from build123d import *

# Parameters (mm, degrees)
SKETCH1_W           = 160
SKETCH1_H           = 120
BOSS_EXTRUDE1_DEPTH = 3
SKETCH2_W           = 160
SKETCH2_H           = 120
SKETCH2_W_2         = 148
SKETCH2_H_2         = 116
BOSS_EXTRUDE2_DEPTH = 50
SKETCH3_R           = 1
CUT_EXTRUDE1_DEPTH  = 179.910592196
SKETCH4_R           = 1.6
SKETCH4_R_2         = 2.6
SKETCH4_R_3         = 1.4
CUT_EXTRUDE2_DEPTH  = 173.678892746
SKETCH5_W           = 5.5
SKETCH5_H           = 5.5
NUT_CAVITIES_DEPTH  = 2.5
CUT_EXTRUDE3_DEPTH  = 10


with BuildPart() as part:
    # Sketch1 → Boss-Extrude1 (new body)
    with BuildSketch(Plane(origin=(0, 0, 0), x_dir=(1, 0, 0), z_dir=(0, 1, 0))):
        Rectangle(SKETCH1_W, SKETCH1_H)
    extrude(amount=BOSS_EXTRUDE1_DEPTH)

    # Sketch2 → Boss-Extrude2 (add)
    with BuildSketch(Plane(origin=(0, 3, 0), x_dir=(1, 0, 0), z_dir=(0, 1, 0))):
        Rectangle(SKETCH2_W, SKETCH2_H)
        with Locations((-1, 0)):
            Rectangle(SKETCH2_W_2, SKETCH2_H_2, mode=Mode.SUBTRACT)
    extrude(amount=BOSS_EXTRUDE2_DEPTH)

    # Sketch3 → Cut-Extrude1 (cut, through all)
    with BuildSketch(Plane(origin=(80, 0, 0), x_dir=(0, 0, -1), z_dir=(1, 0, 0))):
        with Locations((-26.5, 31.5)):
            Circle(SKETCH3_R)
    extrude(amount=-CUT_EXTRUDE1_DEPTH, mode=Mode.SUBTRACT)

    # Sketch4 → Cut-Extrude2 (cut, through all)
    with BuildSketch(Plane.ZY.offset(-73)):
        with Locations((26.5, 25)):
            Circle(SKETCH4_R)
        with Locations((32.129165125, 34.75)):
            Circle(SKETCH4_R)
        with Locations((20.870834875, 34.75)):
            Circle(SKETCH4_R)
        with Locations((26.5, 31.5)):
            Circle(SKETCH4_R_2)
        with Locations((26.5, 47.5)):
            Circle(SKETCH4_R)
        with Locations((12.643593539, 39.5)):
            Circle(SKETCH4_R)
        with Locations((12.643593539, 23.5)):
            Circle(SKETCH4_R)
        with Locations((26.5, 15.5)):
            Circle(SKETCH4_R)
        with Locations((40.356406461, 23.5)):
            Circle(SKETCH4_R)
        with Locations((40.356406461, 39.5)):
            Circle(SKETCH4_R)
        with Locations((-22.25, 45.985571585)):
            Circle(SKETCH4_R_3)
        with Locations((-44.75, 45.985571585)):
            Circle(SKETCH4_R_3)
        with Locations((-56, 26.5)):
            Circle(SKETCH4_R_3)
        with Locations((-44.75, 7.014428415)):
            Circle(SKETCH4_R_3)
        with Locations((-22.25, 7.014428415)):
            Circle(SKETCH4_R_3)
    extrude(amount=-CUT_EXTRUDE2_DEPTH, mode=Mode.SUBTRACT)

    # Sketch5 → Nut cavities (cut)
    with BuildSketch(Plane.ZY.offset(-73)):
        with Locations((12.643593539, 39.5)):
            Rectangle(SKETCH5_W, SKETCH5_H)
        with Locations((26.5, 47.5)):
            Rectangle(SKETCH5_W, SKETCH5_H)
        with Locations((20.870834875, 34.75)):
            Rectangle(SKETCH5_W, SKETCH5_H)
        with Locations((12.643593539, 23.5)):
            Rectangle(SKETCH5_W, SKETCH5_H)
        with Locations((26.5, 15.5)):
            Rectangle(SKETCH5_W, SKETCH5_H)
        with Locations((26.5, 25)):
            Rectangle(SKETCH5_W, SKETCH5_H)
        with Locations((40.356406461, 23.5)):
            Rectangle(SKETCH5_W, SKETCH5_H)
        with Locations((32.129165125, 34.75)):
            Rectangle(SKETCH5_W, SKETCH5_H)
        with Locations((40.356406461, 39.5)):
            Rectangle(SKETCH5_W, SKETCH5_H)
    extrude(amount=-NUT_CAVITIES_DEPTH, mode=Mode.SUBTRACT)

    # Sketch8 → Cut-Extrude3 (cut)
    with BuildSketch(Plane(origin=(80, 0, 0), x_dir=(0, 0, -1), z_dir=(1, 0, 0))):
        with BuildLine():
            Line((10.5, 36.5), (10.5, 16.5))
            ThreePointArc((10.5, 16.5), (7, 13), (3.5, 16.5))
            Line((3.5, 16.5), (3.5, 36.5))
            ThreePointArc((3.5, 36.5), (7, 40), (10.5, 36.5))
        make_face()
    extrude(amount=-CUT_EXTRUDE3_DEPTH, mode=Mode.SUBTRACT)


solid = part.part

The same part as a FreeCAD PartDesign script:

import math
import FreeCAD as App
import Part
import Sketcher

V = App.Vector

doc = App.newDocument("Part")
params = doc.addObject("Spreadsheet::Sheet", "Params")
for row, (alias, value) in enumerate([
    ("sketch1_width", "160 mm"),
    ("sketch1_height", "120 mm"),
    ("pad1_length", "3 mm"),
    ("sketch2_width", "160 mm"),
    ("sketch2_width2", "148 mm"),
    ("sketch2_height", "120 mm"),
    ("sketch2_height2", "116 mm"),
    ("pad2_length", "50 mm"),
    ("sketch3_diameter", "2 mm"),
    ("sketch4_diameter", "3.2 mm"),
    ("sketch4_diameter2", "5.2 mm"),
    ("sketch4_diameter3", "2.8 mm"),
    ("sketch5_width", "5.5 mm"),
    ("pocket3_length", "2.5 mm"),
    ("sketch6_radius", "3.5 mm"),
    ("sketch6_width", "20 mm"),
    ("pocket4_length", "10 mm"),
], start=1):
    params.set(f"A{row}", alias)
    params.set(f"B{row}", "=" + value)
    params.setAlias(f"B{row}", alias)

body = doc.addObject("PartDesign::Body", "Body")

# Sketch on XZ plane
sketch1 = body.newObject("Sketcher::SketchObject", "Sketch")
sketch1.AttachmentSupport = (doc.getObject("XZ_Plane"), [""])
sketch1.MapMode = "FlatFace"
sketch1.addGeometry([
    Part.LineSegment(V(-80, -60, 0), V(-80, 60, 0)),
    Part.LineSegment(V(-80, 60, 0), V(80, 60, 0)),
    Part.LineSegment(V(80, 60, 0), V(80, -60, 0)),
    Part.LineSegment(V(80, -60, 0), V(-80, -60, 0)),
], False)
sketch1.addConstraint([
    Sketcher.Constraint("Coincident", 0, 2, 1, 1),
    Sketcher.Constraint("Coincident", 1, 2, 2, 1),
    Sketcher.Constraint("Coincident", 2, 2, 3, 1),
    Sketcher.Constraint("Coincident", 3, 2, 0, 1),
    Sketcher.Constraint("Vertical", 0),
    Sketcher.Constraint("Horizontal", 1),
    Sketcher.Constraint("Vertical", 2),
    Sketcher.Constraint("Horizontal", 3),
    Sketcher.Constraint("Symmetric", 0, 2, 2, 2, -1, 1),
    Sketcher.Constraint("DistanceX", 1, 1, 1, 2, 160.0),
    Sketcher.Constraint("DistanceY", 0, 1, 0, 2, 120.0),
])
sketch1.setExpression("Constraints[9]", "Params.sketch1_width")
sketch1.setExpression("Constraints[10]", "Params.sketch1_height")
pad1 = body.newObject("PartDesign::Pad", "Pad")
pad1.Profile = sketch1
pad1.setExpression("Length", "Params.pad1_length")
pad1.Reversed = True

# Sketch on XZ plane
sketch2 = body.newObject("Sketcher::SketchObject", "Sketch001")
sketch2.AttachmentSupport = (doc.getObject("XZ_Plane"), [""])
sketch2.MapMode = "FlatFace"
sketch2.AttachmentOffset = App.Placement(V(0, 0, -3), App.Rotation())
sketch2.addGeometry([
    Part.LineSegment(V(-80, -60, 0), V(-80, 60, 0)),  # 0
    Part.LineSegment(V(-80, 60, 0), V(80, 60, 0)),  # 1
    Part.LineSegment(V(80, 60, 0), V(80, -60, 0)),  # 2
    Part.LineSegment(V(80, -60, 0), V(-80, -60, 0)),  # 3
    Part.LineSegment(V(73, 58, 0), V(-75, 58, 0)),  # 4
    Part.LineSegment(V(-75, 58, 0), V(-75, -58, 0)),  # 5
    Part.LineSegment(V(-75, -58, 0), V(73, -58, 0)),  # 6
    Part.LineSegment(V(73, -58, 0), V(73, 58, 0)),  # 7
], False)
sketch2.addConstraint([
    Sketcher.Constraint("Coincident", 0, 2, 1, 1),
    Sketcher.Constraint("Coincident", 1, 2, 2, 1),
    Sketcher.Constraint("Coincident", 2, 2, 3, 1),
    Sketcher.Constraint("Coincident", 3, 2, 0, 1),
    Sketcher.Constraint("Coincident", 4, 2, 5, 1),
    Sketcher.Constraint("Coincident", 5, 2, 6, 1),
    Sketcher.Constraint("Coincident", 6, 2, 7, 1),
    Sketcher.Constraint("Coincident", 7, 2, 4, 1),
    Sketcher.Constraint("Vertical", 0),
    Sketcher.Constraint("Horizontal", 1),
    Sketcher.Constraint("Vertical", 2),
    Sketcher.Constraint("Horizontal", 3),
    Sketcher.Constraint("Horizontal", 4),
    Sketcher.Constraint("Vertical", 5),
    Sketcher.Constraint("Horizontal", 6),
    Sketcher.Constraint("Vertical", 7),
    Sketcher.Constraint("Symmetric", 0, 2, 2, 2, -1, 1),
    Sketcher.Constraint("DistanceX", 1, 1, 1, 2, 160.0),
    Sketcher.Constraint("DistanceX", 4, 2, 4, 1, 148.0),
    Sketcher.Constraint("DistanceY", 0, 1, 0, 2, 120.0),
    Sketcher.Constraint("DistanceY", 5, 2, 5, 1, 116.0),
    Sketcher.Constraint("DistanceX", 4, 2, -1, 1, 75.0),
    Sketcher.Constraint("DistanceY", -1, 1, 4, 2, 58.0),
])
sketch2.setExpression("Constraints[17]", "Params.sketch2_width")
sketch2.setExpression("Constraints[18]", "Params.sketch2_width2")
sketch2.setExpression("Constraints[19]", "Params.sketch2_height")
sketch2.setExpression("Constraints[20]", "Params.sketch2_height2")
pad2 = body.newObject("PartDesign::Pad", "Pad001")
pad2.Profile = sketch2
pad2.setExpression("Length", "Params.pad2_length")
pad2.Reversed = True

# Sketch on YZ plane
sketch3 = body.newObject("Sketcher::SketchObject", "Sketch002")
sketch3.AttachmentSupport = (doc.getObject("YZ_Plane"), [""])
sketch3.MapMode = "FlatFace"
sketch3.AttachmentOffset = App.Placement(V(0, 0, 80), App.Rotation())
sketch3.addGeometry(Part.Circle(V(31.5, 26.5, 0), V(0, 0, 1), 1), False)
sketch3.addConstraint([
    Sketcher.Constraint("Diameter", 0, 2.0),
    Sketcher.Constraint("DistanceX", -1, 1, 0, 3, 31.5),
    Sketcher.Constraint("DistanceY", -1, 1, 0, 3, 26.5),
])
sketch3.setExpression("Constraints[0]", "Params.sketch3_diameter")
pocket1 = body.newObject("PartDesign::Pocket", "Pocket")
pocket1.Profile = sketch3
pocket1.Type = "ThroughAll"

# Sketch on YZ plane
sketch4 = body.newObject("Sketcher::SketchObject", "Sketch003")
sketch4.AttachmentSupport = (doc.getObject("YZ_Plane"), [""])
sketch4.MapMode = "FlatFace"
sketch4.AttachmentOffset = App.Placement(V(0, 0, 73), App.Rotation())
sketch4.addGeometry([
    Part.Circle(V(25, 26.5, 0), V(0, 0, 1), 1.6),  # 0
    Part.Circle(V(34.8, 32.1, 0), V(0, 0, 1), 1.6),  # 1
    Part.Circle(V(34.8, 20.9, 0), V(0, 0, 1), 1.6),  # 2
    Part.Circle(V(31.5, 26.5, 0), V(0, 0, 1), 2.6),  # 3
    Part.Circle(V(47.5, 26.5, 0), V(0, 0, 1), 1.6),  # 4
    Part.Circle(V(39.5, 12.6, 0), V(0, 0, 1), 1.6),  # 5
    Part.Circle(V(23.5, 12.6, 0), V(0, 0, 1), 1.6),  # 6
    Part.Circle(V(15.5, 26.5, 0), V(0, 0, 1), 1.6),  # 7
    Part.Circle(V(23.5, 40.4, 0), V(0, 0, 1), 1.6),  # 8
    Part.Circle(V(39.5, 40.4, 0), V(0, 0, 1), 1.6),  # 9
    Part.Circle(V(46, -22.2, 0), V(0, 0, 1), 1.4),  # 10
    Part.Circle(V(46, -44.8, 0), V(0, 0, 1), 1.4),  # 11
    Part.Circle(V(26.5, -56, 0), V(0, 0, 1), 1.4),  # 12
    Part.Circle(V(7, -44.8, 0), V(0, 0, 1), 1.4),  # 13
    Part.Circle(V(7, -22.2, 0), V(0, 0, 1), 1.4),  # 14
], False)
sketch4.addConstraint([
    Sketcher.Constraint("Equal", 0, 1),
    Sketcher.Constraint("Equal", 1, 2),
    Sketcher.Constraint("Equal", 2, 4),
    Sketcher.Constraint("Equal", 4, 5),
    Sketcher.Constraint("Equal", 5, 6),
    Sketcher.Constraint("Equal", 6, 7),
    Sketcher.Constraint("Equal", 7, 8),
    Sketcher.Constraint("Equal", 8, 9),
    Sketcher.Constraint("Equal", 10, 11),
    Sketcher.Constraint("Equal", 11, 12),
    Sketcher.Constraint("Equal", 12, 13),
    Sketcher.Constraint("Equal", 13, 14),
    Sketcher.Constraint("Horizontal", 0, 3, 3, 3),
    Sketcher.Constraint("Horizontal", 3, 3, 4, 3),
    Sketcher.Constraint("Horizontal", 5, 3, 6, 3),
    Sketcher.Constraint("Horizontal", 4, 3, 7, 3),
    Sketcher.Constraint("Horizontal", 8, 3, 9, 3),
    Sketcher.Constraint("Horizontal", 11, 3, 13, 3),
    Sketcher.Constraint("Horizontal", 10, 3, 14, 3),
    Sketcher.Constraint("Vertical", 1, 3, 2, 3),
    Sketcher.Constraint("Vertical", 6, 3, 8, 3),
    Sketcher.Constraint("Vertical", 5, 3, 9, 3),
    Sketcher.Constraint("Vertical", 10, 3, 11, 3),
    Sketcher.Constraint("Vertical", 13, 3, 14, 3),
    Sketcher.Constraint("Diameter", 0, 3.2),
    Sketcher.Constraint("Diameter", 3, 5.2),
    Sketcher.Constraint("Diameter", 10, 2.8),
    Sketcher.Constraint("DistanceX", -1, 1, 0, 3, 25.0),
    Sketcher.Constraint("DistanceY", 12, 3, -1, 1, 56.0),
    Sketcher.Constraint("DistanceX", 3, 3, 4, 3, 16.0),
    Sketcher.Constraint("DistanceX", 3, 3, 5, 3, 8.0),
    Sketcher.Constraint("DistanceX", 6, 3, 5, 3, 16.0),
    Sketcher.Constraint("DistanceX", 7, 3, 3, 3, 16.0),
    Sketcher.Constraint("DistanceX", 6, 3, 12, 3, 3.0),
    Sketcher.Constraint("DistanceY", -1, 1, 0, 3, 26.5),
    Sketcher.Constraint("DistanceX", -1, 1, 3, 3, 31.5),
    Sketcher.Constraint("DistanceY", 11, 3, 10, 3, 22.5),
    Sketcher.Constraint("DistanceX", -1, 1, 1, 3, 34.75),
    Sketcher.Constraint("DistanceY", 10, 3, -1, 1, 22.25),
    Sketcher.Constraint("DistanceX", -1, 1, 10, 3, 45.985572),
    Sketcher.Constraint("DistanceX", -1, 1, 13, 3, 7.014428),
    Sketcher.Constraint("DistanceY", 2, 3, 1, 3, 11.25833),
    Sketcher.Constraint("DistanceY", 5, 3, 2, 3, 8.227241),
    Sketcher.Constraint("DistanceY", 1, 3, 8, 3, 8.227241),
    Sketcher.Constraint("DistanceY", -1, 1, 1, 3, 32.129165),
])
sketch4.setExpression("Constraints[24]", "Params.sketch4_diameter")
sketch4.setExpression("Constraints[25]", "Params.sketch4_diameter2")
sketch4.setExpression("Constraints[26]", "Params.sketch4_diameter3")
pocket2 = body.newObject("PartDesign::Pocket", "Pocket001")
pocket2.Profile = sketch4
pocket2.Type = "ThroughAll"
pocket2.Reversed = True

# Sketch on YZ plane
sketch5 = body.newObject("Sketcher::SketchObject", "Sketch004")
sketch5.AttachmentSupport = (doc.getObject("YZ_Plane"), [""])
sketch5.MapMode = "FlatFace"
sketch5.AttachmentOffset = App.Placement(V(0, 0, 73), App.Rotation())
sketch5.addGeometry([
    Part.LineSegment(V(42, 10, 0), V(37, 10, 0)),  # 0
    Part.LineSegment(V(37, 10, 0), V(37, 15, 0)),  # 1
    Part.LineSegment(V(37, 15, 0), V(42, 15, 0)),  # 2
    Part.LineSegment(V(42, 15, 0), V(42, 10, 0)),  # 3
    Part.LineSegment(V(50, 24, 0), V(45, 24, 0)),  # 4
    Part.LineSegment(V(45, 24, 0), V(45, 29, 0)),  # 5
    Part.LineSegment(V(45, 29, 0), V(50, 29, 0)),  # 6
    Part.LineSegment(V(50, 29, 0), V(50, 24, 0)),  # 7
    Part.LineSegment(V(38, 18, 0), V(32, 18, 0)),  # 8
    Part.LineSegment(V(32, 18, 0), V(32, 24, 0)),  # 9
    Part.LineSegment(V(32, 24, 0), V(38, 24, 0)),  # 10
    Part.LineSegment(V(38, 24, 0), V(38, 18, 0)),  # 11
    Part.LineSegment(V(26, 10, 0), V(21, 10, 0)),  # 12
    Part.LineSegment(V(21, 10, 0), V(21, 15, 0)),  # 13
    Part.LineSegment(V(21, 15, 0), V(26, 15, 0)),  # 14
    Part.LineSegment(V(26, 15, 0), V(26, 10, 0)),  # 15
    Part.LineSegment(V(18, 24, 0), V(13, 24, 0)),  # 16
    Part.LineSegment(V(13, 24, 0), V(13, 29, 0)),  # 17
    Part.LineSegment(V(13, 29, 0), V(18, 29, 0)),  # 18
    Part.LineSegment(V(18, 29, 0), V(18, 24, 0)),  # 19
    Part.LineSegment(V(28, 24, 0), V(22, 24, 0)),  # 20
    Part.LineSegment(V(22, 24, 0), V(22, 29, 0)),  # 21
    Part.LineSegment(V(22, 29, 0), V(28, 29, 0)),  # 22
    Part.LineSegment(V(28, 29, 0), V(28, 24, 0)),  # 23
    Part.LineSegment(V(26, 38, 0), V(21, 38, 0)),  # 24
    Part.LineSegment(V(21, 38, 0), V(21, 43, 0)),  # 25
    Part.LineSegment(V(21, 43, 0), V(26, 43, 0)),  # 26
    Part.LineSegment(V(26, 43, 0), V(26, 38, 0)),  # 27
    Part.LineSegment(V(38, 29, 0), V(32, 29, 0)),  # 28
    Part.LineSegment(V(32, 29, 0), V(32, 35, 0)),  # 29
    Part.LineSegment(V(32, 35, 0), V(38, 35, 0)),  # 30
    Part.LineSegment(V(38, 35, 0), V(38, 29, 0)),  # 31
    Part.LineSegment(V(42, 38, 0), V(37, 38, 0)),  # 32
    Part.LineSegment(V(37, 38, 0), V(37, 43, 0)),  # 33
    Part.LineSegment(V(37, 43, 0), V(42, 43, 0)),  # 34
    Part.LineSegment(V(42, 43, 0), V(42, 38, 0)),  # 35
], False)
sketch5.addConstraint([
    Sketcher.Constraint("Coincident", 0, 2, 1, 1),
    Sketcher.Constraint("Coincident", 1, 2, 2, 1),
    Sketcher.Constraint("Coincident", 2, 2, 3, 1),
    Sketcher.Constraint("Coincident", 3, 2, 0, 1),
    Sketcher.Constraint("Coincident", 4, 2, 5, 1),
    Sketcher.Constraint("Coincident", 5, 2, 6, 1),
    Sketcher.Constraint("Coincident", 6, 2, 7, 1),
    Sketcher.Constraint("Coincident", 7, 2, 4, 1),
    Sketcher.Constraint("Coincident", 8, 2, 9, 1),
    Sketcher.Constraint("Coincident", 9, 2, 10, 1),
    Sketcher.Constraint("Coincident", 10, 2, 11, 1),
    Sketcher.Constraint("Coincident", 11, 2, 8, 1),
    Sketcher.Constraint("Coincident", 12, 2, 13, 1),
    Sketcher.Constraint("Coincident", 13, 2, 14, 1),
    Sketcher.Constraint("Coincident", 14, 2, 15, 1),
    Sketcher.Constraint("Coincident", 15, 2, 12, 1),
    Sketcher.Constraint("Coincident", 16, 2, 17, 1),
    Sketcher.Constraint("Coincident", 17, 2, 18, 1),
    Sketcher.Constraint("Coincident", 18, 2, 19, 1),
    Sketcher.Constraint("Coincident", 19, 2, 16, 1),
    Sketcher.Constraint("Coincident", 20, 2, 21, 1),
    Sketcher.Constraint("Coincident", 21, 2, 22, 1),
    Sketcher.Constraint("Coincident", 22, 2, 23, 1),
    Sketcher.Constraint("Coincident", 23, 2, 20, 1),
    Sketcher.Constraint("Coincident", 24, 2, 25, 1),
    Sketcher.Constraint("Coincident", 25, 2, 26, 1),
    Sketcher.Constraint("Coincident", 26, 2, 27, 1),
    Sketcher.Constraint("Coincident", 27, 2, 24, 1),
    Sketcher.Constraint("Coincident", 28, 2, 29, 1),
    Sketcher.Constraint("Coincident", 29, 2, 30, 1),
    Sketcher.Constraint("Coincident", 30, 2, 31, 1),
    Sketcher.Constraint("Coincident", 31, 2, 28, 1),
    Sketcher.Constraint("Coincident", 32, 2, 33, 1),
    Sketcher.Constraint("Coincident", 33, 2, 34, 1),
    Sketcher.Constraint("Coincident", 34, 2, 35, 1),
    Sketcher.Constraint("Coincident", 35, 2, 32, 1),
    Sketcher.Constraint("Horizontal", 0),
    Sketcher.Constraint("Vertical", 1),
    Sketcher.Constraint("Horizontal", 2),
    Sketcher.Constraint("Vertical", 3),
    Sketcher.Constraint("Horizontal", 4),
    Sketcher.Constraint("Vertical", 5),
    Sketcher.Constraint("Horizontal", 6),
    Sketcher.Constraint("Vertical", 7),
    Sketcher.Constraint("Horizontal", 8),
    Sketcher.Constraint("Vertical", 9),
    Sketcher.Constraint("Horizontal", 10),
    Sketcher.Constraint("Vertical", 11),
    Sketcher.Constraint("Horizontal", 12),
    Sketcher.Constraint("Vertical", 13),
    Sketcher.Constraint("Horizontal", 14),
    Sketcher.Constraint("Vertical", 15),
    Sketcher.Constraint("Horizontal", 16),
    Sketcher.Constraint("Vertical", 17),
    Sketcher.Constraint("Horizontal", 18),
    Sketcher.Constraint("Vertical", 19),
    Sketcher.Constraint("Horizontal", 20),
    Sketcher.Constraint("Vertical", 21),
    Sketcher.Constraint("Horizontal", 22),
    Sketcher.Constraint("Vertical", 23),
    Sketcher.Constraint("Horizontal", 24),
    Sketcher.Constraint("Vertical", 25),
    Sketcher.Constraint("Horizontal", 26),
    Sketcher.Constraint("Vertical", 27),
    Sketcher.Constraint("Horizontal", 28),
    Sketcher.Constraint("Vertical", 29),
    Sketcher.Constraint("Horizontal", 30),
    Sketcher.Constraint("Vertical", 31),
    Sketcher.Constraint("Horizontal", 32),
    Sketcher.Constraint("Vertical", 33),
    Sketcher.Constraint("Horizontal", 34),
    Sketcher.Constraint("Vertical", 35),
    Sketcher.Constraint("Horizontal", 3, 2, 12, 2),
    Sketcher.Constraint("Horizontal", 2, 2, 13, 2),
    Sketcher.Constraint("Horizontal", 7, 2, 16, 2),
    Sketcher.Constraint("Horizontal", 6, 2, 17, 2),
    Sketcher.Constraint("Horizontal", 19, 2, 20, 2),
    Sketcher.Constraint("Horizontal", 18, 2, 21, 2),
    Sketcher.Constraint("Horizontal", 27, 2, 32, 2),
    Sketcher.Constraint("Horizontal", 26, 2, 33, 2),
    Sketcher.Constraint("Vertical", 13, 2, 24, 2),
    Sketcher.Constraint("Vertical", 15, 2, 26, 2),
    Sketcher.Constraint("Vertical", 9, 2, 28, 2),
    Sketcher.Constraint("Vertical", 11, 2, 30, 2),
    Sketcher.Constraint("Vertical", 1, 2, 32, 2),
    Sketcher.Constraint("Vertical", 3, 2, 34, 2),
    Sketcher.Constraint("Equal", 2, 4),
    Sketcher.Constraint("Equal", 6, 8),
    Sketcher.Constraint("Equal", 10, 12),
    Sketcher.Constraint("Equal", 14, 16),
    Sketcher.Constraint("Equal", 18, 20),
    Sketcher.Constraint("Equal", 34, 1),
    Sketcher.Constraint("Equal", 3, 5),
    Sketcher.Constraint("Equal", 7, 9),
    Sketcher.Constraint("Equal", 23, 25),
    Sketcher.Constraint("Equal", 27, 29),
    Sketcher.Constraint("DistanceX", 0, 2, 0, 1, 5.5),
    Sketcher.Constraint("DistanceX", -1, 1, 8, 2, 32.0),
    Sketcher.Constraint("DistanceX", 1, 2, 4, 2, 8.0),
    Sketcher.Constraint("DistanceX", 12, 2, 0, 2, 16.0),
    Sketcher.Constraint("DistanceX", 16, 2, 13, 2, 8.0),
    Sketcher.Constraint("DistanceX", 19, 2, 20, 2, 4.0),
    Sketcher.Constraint("DistanceX", -1, 1, 0, 2, 36.75),
    Sketcher.Constraint("DistanceY", -1, 1, 4, 2, 23.75),
    Sketcher.Constraint("DistanceY", 1, 2, 8, 2, 2.727241),
    Sketcher.Constraint("DistanceY", 9, 2, 28, 2, 5.75833),
    Sketcher.Constraint("DistanceY", 29, 2, 27, 2, 2.727241),
    Sketcher.Constraint("DistanceY", -1, 1, 0, 2, 9.893594),
])
sketch5.setExpression("Constraints[96]", "Params.sketch5_width")
pocket3 = body.newObject("PartDesign::Pocket", "Pocket002")
pocket3.Profile = sketch5
pocket3.setExpression("Length", "Params.pocket3_length")
pocket3.Reversed = True

# Sketch on YZ plane
sketch6 = body.newObject("Sketcher::SketchObject", "Sketch005")
sketch6.AttachmentSupport = (doc.getObject("YZ_Plane"), [""])
sketch6.MapMode = "FlatFace"
sketch6.AttachmentOffset = App.Placement(V(0, 0, 80), App.Rotation())
sketch6.addGeometry([
    Part.LineSegment(V(16.5, -10.5, 0), V(36.5, -10.5, 0)),
    Part.ArcOfCircle(Part.Circle(V(36.5, -7, 0), V(0, 0, 1), 3.5), math.radians(-90), math.radians(90)),
    Part.LineSegment(V(36.5, -3.5, 0), V(16.5, -3.5, 0)),
    Part.ArcOfCircle(Part.Circle(V(16.5, -7, 0), V(0, 0, 1), 3.5), math.radians(90), math.radians(270)),
], False)
sketch6.addConstraint([
    Sketcher.Constraint("Tangent", 0, 2, 1, 1),
    Sketcher.Constraint("Tangent", 1, 2, 2, 1),
    Sketcher.Constraint("Tangent", 2, 2, 3, 1),
    Sketcher.Constraint("Tangent", 3, 2, 0, 1),
    Sketcher.Constraint("Horizontal", 0),
    Sketcher.Constraint("Horizontal", 2),
    Sketcher.Constraint("Radius", 1, 3.5),
    Sketcher.Constraint("DistanceX", 0, 1, 0, 2, 20.0),
    Sketcher.Constraint("DistanceY", 1, 3, -1, 1, 7.0),
    Sketcher.Constraint("DistanceX", -1, 1, 1, 3, 36.5),
])
sketch6.setExpression("Constraints[6]", "Params.sketch6_radius")
sketch6.setExpression("Constraints[7]", "Params.sketch6_width")
pocket4 = body.newObject("PartDesign::Pocket", "Pocket003")
pocket4.Profile = sketch6
pocket4.setExpression("Length", "Params.pocket4_length")

doc.recompute()
